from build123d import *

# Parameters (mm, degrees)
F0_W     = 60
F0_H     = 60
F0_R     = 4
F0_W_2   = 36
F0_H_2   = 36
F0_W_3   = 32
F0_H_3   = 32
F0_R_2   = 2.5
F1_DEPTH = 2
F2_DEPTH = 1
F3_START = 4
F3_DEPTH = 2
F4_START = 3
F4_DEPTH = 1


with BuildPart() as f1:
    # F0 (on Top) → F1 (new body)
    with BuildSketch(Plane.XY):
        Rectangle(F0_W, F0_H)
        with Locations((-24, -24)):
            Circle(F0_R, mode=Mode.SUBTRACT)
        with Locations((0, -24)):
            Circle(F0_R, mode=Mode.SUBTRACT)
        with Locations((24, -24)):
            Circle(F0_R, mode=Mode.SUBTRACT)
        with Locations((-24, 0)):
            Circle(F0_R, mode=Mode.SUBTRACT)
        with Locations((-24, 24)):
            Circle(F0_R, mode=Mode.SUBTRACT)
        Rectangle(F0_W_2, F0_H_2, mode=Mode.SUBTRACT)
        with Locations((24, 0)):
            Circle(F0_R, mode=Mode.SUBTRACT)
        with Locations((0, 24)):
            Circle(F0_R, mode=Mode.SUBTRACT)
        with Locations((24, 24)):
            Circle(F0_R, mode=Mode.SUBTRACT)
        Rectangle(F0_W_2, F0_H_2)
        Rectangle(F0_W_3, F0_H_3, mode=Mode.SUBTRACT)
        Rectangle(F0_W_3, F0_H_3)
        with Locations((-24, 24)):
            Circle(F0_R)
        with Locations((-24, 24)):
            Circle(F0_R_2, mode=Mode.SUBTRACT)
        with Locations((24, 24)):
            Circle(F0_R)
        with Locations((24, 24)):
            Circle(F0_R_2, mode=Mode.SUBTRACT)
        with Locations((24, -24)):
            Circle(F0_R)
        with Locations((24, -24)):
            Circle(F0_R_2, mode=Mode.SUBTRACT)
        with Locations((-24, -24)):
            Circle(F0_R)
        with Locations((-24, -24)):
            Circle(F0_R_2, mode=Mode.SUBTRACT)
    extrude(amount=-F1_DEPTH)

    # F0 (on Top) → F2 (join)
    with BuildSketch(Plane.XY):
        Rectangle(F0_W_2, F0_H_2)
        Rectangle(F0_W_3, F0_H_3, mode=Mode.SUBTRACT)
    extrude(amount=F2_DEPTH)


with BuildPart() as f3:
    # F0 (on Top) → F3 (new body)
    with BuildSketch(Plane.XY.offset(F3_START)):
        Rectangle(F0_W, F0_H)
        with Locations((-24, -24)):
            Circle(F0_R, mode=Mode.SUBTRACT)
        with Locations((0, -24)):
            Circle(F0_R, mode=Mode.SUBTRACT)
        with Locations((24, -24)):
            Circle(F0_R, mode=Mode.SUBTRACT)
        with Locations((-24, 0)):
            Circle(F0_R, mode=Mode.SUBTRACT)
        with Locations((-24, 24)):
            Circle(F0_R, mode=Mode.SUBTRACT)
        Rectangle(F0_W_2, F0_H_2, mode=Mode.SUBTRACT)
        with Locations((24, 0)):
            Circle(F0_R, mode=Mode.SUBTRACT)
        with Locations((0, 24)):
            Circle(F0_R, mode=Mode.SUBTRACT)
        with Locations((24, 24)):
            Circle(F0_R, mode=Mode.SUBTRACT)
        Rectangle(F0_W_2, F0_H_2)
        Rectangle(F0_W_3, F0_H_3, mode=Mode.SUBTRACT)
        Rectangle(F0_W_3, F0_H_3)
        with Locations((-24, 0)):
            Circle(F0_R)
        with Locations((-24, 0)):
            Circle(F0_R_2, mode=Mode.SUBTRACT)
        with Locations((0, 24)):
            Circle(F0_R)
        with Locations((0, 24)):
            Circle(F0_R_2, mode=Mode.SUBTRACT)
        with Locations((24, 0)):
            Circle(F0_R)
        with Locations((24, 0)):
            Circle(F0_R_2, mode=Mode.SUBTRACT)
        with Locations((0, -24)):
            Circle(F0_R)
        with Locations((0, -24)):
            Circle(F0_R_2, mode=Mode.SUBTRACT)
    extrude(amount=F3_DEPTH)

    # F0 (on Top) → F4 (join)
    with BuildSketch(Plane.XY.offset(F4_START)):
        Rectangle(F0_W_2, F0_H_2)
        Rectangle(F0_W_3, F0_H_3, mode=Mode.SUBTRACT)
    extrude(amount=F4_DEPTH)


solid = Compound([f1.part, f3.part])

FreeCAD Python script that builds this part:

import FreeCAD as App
import Part
import Sketcher

doc = App.newDocument("Part")
body = doc.addObject("PartDesign::Body", "Body")

sketch1 = body.newObject("Sketcher::SketchObject", "Sketch")
sketch1.AttachmentSupport = (doc.getObject("XY_Plane"), [""])
sketch1.MapMode = "FlatFace"
sketch1.addGeometry([
    Part.LineSegment(App.Vector(-30, 30, 0), App.Vector(-30, -30, 0)),
    Part.LineSegment(App.Vector(-30, -30, 0), App.Vector(30, -30, 0)),
    Part.LineSegment(App.Vector(30, -30, 0), App.Vector(30, 30, 0)),
    Part.LineSegment(App.Vector(30, 30, 0), App.Vector(-30, 30, 0)),
    Part.Circle(App.Vector(-24, -24, 0), App.Vector(0, 0, 1), 2.5),
    Part.Circle(App.Vector(0, -24, 0), App.Vector(0, 0, 1), 4),
    Part.Circle(App.Vector(24, -24, 0), App.Vector(0, 0, 1), 2.5),
    Part.Circle(App.Vector(-24, 0, 0), App.Vector(0, 0, 1), 4),
    Part.Circle(App.Vector(-24, 24, 0), App.Vector(0, 0, 1), 2.5),
    Part.Circle(App.Vector(24, 0, 0), App.Vector(0, 0, 1), 4),
    Part.Circle(App.Vector(0, 24, 0), App.Vector(0, 0, 1), 4),
    Part.Circle(App.Vector(24, 24, 0), App.Vector(0, 0, 1), 2.5),
], False)
sketch1.addConstraint([
    Sketcher.Constraint("Coincident", 0, 2, 1, 1),
    Sketcher.Constraint("Coincident", 1, 2, 2, 1),
    Sketcher.Constraint("Coincident", 2, 2, 3, 1),
    Sketcher.Constraint("Coincident", 3, 2, 0, 1),
    Sketcher.Constraint("Vertical", 0),
    Sketcher.Constraint("Horizontal", 1),
    Sketcher.Constraint("Vertical", 2),
    Sketcher.Constraint("Horizontal", 3),
    Sketcher.Constraint("Equal", 4, 6),
    Sketcher.Constraint("Equal", 5, 7),
    Sketcher.Constraint("Equal", 6, 8),
    Sketcher.Constraint("Equal", 7, 9),
    Sketcher.Constraint("Equal", 9, 10),
    Sketcher.Constraint("Equal", 8, 11),
    Sketcher.Constraint("Symmetric", 6, 3, 8, 3, -1, 1),
    Sketcher.Constraint("Symmetric", 7, 3, 9, 3, -1, 1),
    Sketcher.Constraint("Symmetric", 5, 3, 10, 3, -1, 1),
    Sketcher.Constraint("Symmetric", 4, 3, 11, 3, -1, 1),
    Sketcher.Constraint("Symmetric", 0, 2, 2, 2, -1, 1),
    Sketcher.Constraint("Symmetric", 4, 3, 6, 3, -2),
    Sketcher.Constraint("PointOnObject", 5, 3, -2),
    Sketcher.Constraint("PointOnObject", 7, 3, -1),
    Sketcher.Constraint("Horizontal", 4, 3, 5, 3),
    Sketcher.Constraint("Vertical", 4, 3, 7, 3),
    Sketcher.Constraint("Equal", 3, 0),
    Sketcher.Constraint("Diameter", 4, 5.0),
    Sketcher.Constraint("Diameter", 5, 8.0),
    Sketcher.Constraint("DistanceX", 1, 1, 1, 2, 60.0),
    Sketcher.Constraint("DistanceX", 4, 3, -1, 1, 24.0),
    Sketcher.Constraint("DistanceY", 4, 3, -1, 1, 24.0),
])
pad1 = body.newObject("PartDesign::Pad", "Pad")
pad1.Profile = sketch1
pad1.Length = 2
pad1.Reversed = True

sketch2 = body.newObject("Sketcher::SketchObject", "Sketch001")
sketch2.AttachmentSupport = (doc.getObject("XY_Plane"), [""])
sketch2.MapMode = "FlatFace"
sketch2.addGeometry([
    Part.LineSegment(App.Vector(-18, 18, 0), App.Vector(-18, -18, 0)),
    Part.LineSegment(App.Vector(-18, -18, 0), App.Vector(18, -18, 0)),
    Part.LineSegment(App.Vector(18, -18, 0), App.Vector(18, 18, 0)),
    Part.LineSegment(App.Vector(18, 18, 0), App.Vector(-18, 18, 0)),
    Part.LineSegment(App.Vector(16, -16, 0), App.Vector(-16, -16, 0)),
    Part.LineSegment(App.Vector(-16, -16, 0), App.Vector(-16, 16, 0)),
    Part.LineSegment(App.Vector(-16, 16, 0), App.Vector(16, 16, 0)),
    Part.LineSegment(App.Vector(16, 16, 0), App.Vector(16, -16, 0)),
], False)
sketch2.addConstraint([
    Sketcher.Constraint("Coincident", 0, 2, 1, 1),
    Sketcher.Constraint("Coincident", 1, 2, 2, 1),
    Sketcher.Constraint("Coincident", 2, 2, 3, 1),
    Sketcher.Constraint("Coincident", 3, 2, 0, 1),
    Sketcher.Constraint("Coincident", 4, 2, 5, 1),
    Sketcher.Constraint("Coincident", 5, 2, 6, 1),
    Sketcher.Constraint("Coincident", 6, 2, 7, 1),
    Sketcher.Constraint("Coincident", 7, 2, 4, 1),
    Sketcher.Constraint("Vertical", 0),
    Sketcher.Constraint("Horizontal", 1),
    Sketcher.Constraint("Vertical", 2),
    Sketcher.Constraint("Horizontal", 3),
    Sketcher.Constraint("Horizontal", 4),
    Sketcher.Constraint("Vertical", 5),
    Sketcher.Constraint("Horizontal", 6),
    Sketcher.Constraint("Vertical", 7),
    Sketcher.Constraint("Symmetric", 0, 2, 2, 2, -1, 1),
    Sketcher.Constraint("Symmetric", 4, 2, 6, 2, -1, 1),
    Sketcher.Constraint("Equal", 3, 0),
    Sketcher.Constraint("Equal", 6, 5),
    Sketcher.Constraint("DistanceX", 1, 1, 1, 2, 36.0),
    Sketcher.Constraint("DistanceX", 4, 2, 4, 1, 32.0),
])
pad2 = body.newObject("PartDesign::Pad", "Pad001")
pad2.Profile = sketch2
pad2.Length = 1
body2 = doc.addObject("PartDesign::Body", "Body001")

sketch3 = body2.newObject("Sketcher::SketchObject", "Sketch002")
sketch3.AttachmentSupport = (doc.getObject("XY_Plane001"), [""])
sketch3.MapMode = "FlatFace"
sketch3.AttachmentOffset = App.Placement(App.Vector(0, 0, 4), App.Rotation())
sketch3.addGeometry([
    Part.LineSegment(App.Vector(-30, 30, 0), App.Vector(-30, -30, 0)),
    Part.LineSegment(App.Vector(-30, -30, 0), App.Vector(30, -30, 0)),
    Part.LineSegment(App.Vector(30, -30, 0), App.Vector(30, 30, 0)),
    Part.LineSegment(App.Vector(30, 30, 0), App.Vector(-30, 30, 0)),
    Part.Circle(App.Vector(-24, -24, 0), App.Vector(0, 0, 1), 4),
    Part.Circle(App.Vector(0, -24, 0), App.Vector(0, 0, 1), 2.5),
    Part.Circle(App.Vector(24, -24, 0), App.Vector(0, 0, 1), 4),
    Part.Circle(App.Vector(-24, 0, 0), App.Vector(0, 0, 1), 2.5),
    Part.Circle(App.Vector(-24, 24, 0), App.Vector(0, 0, 1), 4),
    Part.Circle(App.Vector(24, 0, 0), App.Vector(0, 0, 1), 2.5),
    Part.Circle(App.Vector(0, 24, 0), App.Vector(0, 0, 1), 2.5),
    Part.Circle(App.Vector(24, 24, 0), App.Vector(0, 0, 1), 4),
], False)
sketch3.addConstraint([
    Sketcher.Constraint("Coincident", 0, 2, 1, 1),
    Sketcher.Constraint("Coincident", 1, 2, 2, 1),
    Sketcher.Constraint("Coincident", 2, 2, 3, 1),
    Sketcher.Constraint("Coincident", 3, 2, 0, 1),
    Sketcher.Constraint("Vertical", 0),
    Sketcher.Constraint("Horizontal", 1),
    Sketcher.Constraint("Vertical", 2),
    Sketcher.Constraint("Horizontal", 3),
    Sketcher.Constraint("Equal", 4, 6),
    Sketcher.Constraint("Equal", 5, 7),
    Sketcher.Constraint("Equal", 6, 8),
    Sketcher.Constraint("Equal", 7, 9),
    Sketcher.Constraint("Equal", 9, 10),
    Sketcher.Constraint("Equal", 8, 11),
    Sketcher.Constraint("Symmetric", 6, 3, 8, 3, -1, 1),
    Sketcher.Constraint("Symmetric", 7, 3, 9, 3, -1, 1),
    Sketcher.Constraint("Symmetric", 5, 3, 10, 3, -1, 1),
    Sketcher.Constraint("Symmetric", 4, 3, 11, 3, -1, 1),
    Sketcher.Constraint("Symmetric", 0, 2, 2, 2, -1, 1),
    Sketcher.Constraint("Symmetric", 4, 3, 6, 3, -2),
    Sketcher.Constraint("PointOnObject", 5, 3, -2),
    Sketcher.Constraint("PointOnObject", 7, 3, -1),
    Sketcher.Constraint("Horizontal", 4, 3, 5, 3),
    Sketcher.Constraint("Vertical", 4, 3, 7, 3),
    Sketcher.Constraint("Equal", 3, 0),
    Sketcher.Constraint("Diameter", 4, 8.0),
    Sketcher.Constraint("Diameter", 5, 5.0),
    Sketcher.Constraint("DistanceX", 1, 1, 1, 2, 60.0),
    Sketcher.Constraint("DistanceX", 4, 3, -1, 1, 24.0),
    Sketcher.Constraint("DistanceY", 4, 3, -1, 1, 24.0),
])
pad3 = body2.newObject("PartDesign::Pad", "Pad002")
pad3.Profile = sketch3
pad3.Length = 2

sketch4 = body2.newObject("Sketcher::SketchObject", "Sketch003")
sketch4.AttachmentSupport = (doc.getObject("XY_Plane001"), [""])
sketch4.MapMode = "FlatFace"
sketch4.AttachmentOffset = App.Placement(App.Vector(0, 0, 3), App.Rotation())
sketch4.addGeometry([
    Part.LineSegment(App.Vector(-18, 18, 0), App.Vector(-18, -18, 0)),
    Part.LineSegment(App.Vector(-18, -18, 0), App.Vector(18, -18, 0)),
    Part.LineSegment(App.Vector(18, -18, 0), App.Vector(18, 18, 0)),
    Part.LineSegment(App.Vector(18, 18, 0), App.Vector(-18, 18, 0)),
    Part.LineSegment(App.Vector(16, -16, 0), App.Vector(-16, -16, 0)),
    Part.LineSegment(App.Vector(-16, -16, 0), App.Vector(-16, 16, 0)),
    Part.LineSegment(App.Vector(-16, 16, 0), App.Vector(16, 16, 0)),
    Part.LineSegment(App.Vector(16, 16, 0), App.Vector(16, -16, 0)),
], False)
sketch4.addConstraint([
    Sketcher.Constraint("Coincident", 0, 2, 1, 1),
    Sketcher.Constraint("Coincident", 1, 2, 2, 1),
    Sketcher.Constraint("Coincident", 2, 2, 3, 1),
    Sketcher.Constraint("Coincident", 3, 2, 0, 1),
    Sketcher.Constraint("Coincident", 4, 2, 5, 1),
    Sketcher.Constraint("Coincident", 5, 2, 6, 1),
    Sketcher.Constraint("Coincident", 6, 2, 7, 1),
    Sketcher.Constraint("Coincident", 7, 2, 4, 1),
    Sketcher.Constraint("Vertical", 0),
    Sketcher.Constraint("Horizontal", 1),
    Sketcher.Constraint("Vertical", 2),
    Sketcher.Constraint("Horizontal", 3),
    Sketcher.Constraint("Horizontal", 4),
    Sketcher.Constraint("Vertical", 5),
    Sketcher.Constraint("Horizontal", 6),
    Sketcher.Constraint("Vertical", 7),
    Sketcher.Constraint("Symmetric", 0, 2, 2, 2, -1, 1),
    Sketcher.Constraint("Symmetric", 4, 2, 6, 2, -1, 1),
    Sketcher.Constraint("Equal", 3, 0),
    Sketcher.Constraint("Equal", 6, 5),
    Sketcher.Constraint("DistanceX", 1, 1, 1, 2, 36.0),
    Sketcher.Constraint("DistanceX", 4, 2, 4, 1, 32.0),
])
pad4 = body2.newObject("PartDesign::Pad", "Pad003")
pad4.Profile = sketch4
pad4.Length = 1

doc.recompute()
